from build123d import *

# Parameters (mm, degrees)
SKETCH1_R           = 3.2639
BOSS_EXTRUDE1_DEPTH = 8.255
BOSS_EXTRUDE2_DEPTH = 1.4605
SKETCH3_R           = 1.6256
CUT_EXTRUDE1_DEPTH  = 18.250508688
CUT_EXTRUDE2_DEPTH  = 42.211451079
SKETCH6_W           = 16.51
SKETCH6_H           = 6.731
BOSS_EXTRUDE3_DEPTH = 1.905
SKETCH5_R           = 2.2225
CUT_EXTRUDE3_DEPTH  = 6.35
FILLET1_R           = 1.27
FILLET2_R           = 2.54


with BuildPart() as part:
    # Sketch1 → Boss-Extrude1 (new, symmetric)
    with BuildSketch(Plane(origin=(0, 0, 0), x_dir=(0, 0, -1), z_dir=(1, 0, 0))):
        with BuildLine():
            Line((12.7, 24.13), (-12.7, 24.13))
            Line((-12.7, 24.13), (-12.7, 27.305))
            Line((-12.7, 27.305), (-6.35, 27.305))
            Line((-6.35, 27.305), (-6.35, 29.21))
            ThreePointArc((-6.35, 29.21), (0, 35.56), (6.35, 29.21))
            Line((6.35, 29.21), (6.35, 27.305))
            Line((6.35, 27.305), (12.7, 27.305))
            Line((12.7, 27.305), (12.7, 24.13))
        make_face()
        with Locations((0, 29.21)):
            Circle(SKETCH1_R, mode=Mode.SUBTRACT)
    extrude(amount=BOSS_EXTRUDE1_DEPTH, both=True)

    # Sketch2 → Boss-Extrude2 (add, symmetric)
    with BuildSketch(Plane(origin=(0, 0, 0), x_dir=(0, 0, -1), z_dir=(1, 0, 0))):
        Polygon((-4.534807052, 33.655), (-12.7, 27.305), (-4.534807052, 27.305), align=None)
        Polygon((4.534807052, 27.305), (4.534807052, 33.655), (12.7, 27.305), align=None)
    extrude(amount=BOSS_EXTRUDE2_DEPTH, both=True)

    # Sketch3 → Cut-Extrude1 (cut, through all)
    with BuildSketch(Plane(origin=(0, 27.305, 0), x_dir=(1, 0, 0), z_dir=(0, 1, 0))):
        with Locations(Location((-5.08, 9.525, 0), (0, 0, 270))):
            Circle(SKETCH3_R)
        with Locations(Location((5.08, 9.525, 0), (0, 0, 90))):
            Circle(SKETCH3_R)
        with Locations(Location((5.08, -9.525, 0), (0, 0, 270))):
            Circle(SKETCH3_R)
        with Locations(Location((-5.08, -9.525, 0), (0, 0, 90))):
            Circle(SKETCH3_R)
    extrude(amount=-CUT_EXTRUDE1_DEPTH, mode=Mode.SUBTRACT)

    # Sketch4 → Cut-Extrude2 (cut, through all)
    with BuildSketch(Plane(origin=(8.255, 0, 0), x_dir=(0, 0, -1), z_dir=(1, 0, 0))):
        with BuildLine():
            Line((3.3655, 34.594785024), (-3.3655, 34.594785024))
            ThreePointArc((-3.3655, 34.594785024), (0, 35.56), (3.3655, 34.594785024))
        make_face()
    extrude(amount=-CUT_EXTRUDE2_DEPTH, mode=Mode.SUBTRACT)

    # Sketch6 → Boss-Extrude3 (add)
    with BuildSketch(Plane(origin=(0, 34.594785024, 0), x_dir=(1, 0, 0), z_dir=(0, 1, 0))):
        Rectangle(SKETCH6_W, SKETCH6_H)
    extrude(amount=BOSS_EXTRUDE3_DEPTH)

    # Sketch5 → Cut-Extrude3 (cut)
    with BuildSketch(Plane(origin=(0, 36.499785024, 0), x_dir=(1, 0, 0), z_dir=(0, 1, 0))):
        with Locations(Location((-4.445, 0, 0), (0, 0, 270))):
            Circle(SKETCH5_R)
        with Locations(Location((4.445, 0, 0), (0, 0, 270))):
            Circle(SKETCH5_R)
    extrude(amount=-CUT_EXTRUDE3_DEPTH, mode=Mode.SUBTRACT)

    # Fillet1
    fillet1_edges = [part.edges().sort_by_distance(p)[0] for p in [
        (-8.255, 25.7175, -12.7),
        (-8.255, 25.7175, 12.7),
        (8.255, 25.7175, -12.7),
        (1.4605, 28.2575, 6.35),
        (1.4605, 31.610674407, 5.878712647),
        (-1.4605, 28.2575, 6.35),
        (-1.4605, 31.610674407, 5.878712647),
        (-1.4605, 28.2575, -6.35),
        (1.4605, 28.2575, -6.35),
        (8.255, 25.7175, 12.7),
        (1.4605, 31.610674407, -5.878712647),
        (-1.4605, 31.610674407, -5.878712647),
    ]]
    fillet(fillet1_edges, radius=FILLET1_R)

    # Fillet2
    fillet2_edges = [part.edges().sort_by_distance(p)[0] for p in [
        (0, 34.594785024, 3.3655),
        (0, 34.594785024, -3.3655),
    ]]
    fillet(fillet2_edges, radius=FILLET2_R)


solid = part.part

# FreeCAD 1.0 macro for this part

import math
import FreeCAD as App
import Part
import Sketcher
from FreeCAD import Vector
Q = App.Units.Quantity


def edges_at(feature, points):
    """Names of the edges that pass closest to the given points."""
    edges = feature.Shape.Edges
    near = lambda p: min(range(len(edges)), key=lambda i: edges[i].distToShape(Part.Vertex(*p))[0])
    return sorted({f"Edge{near(p) + 1}" for p in points})


def add_polygon(sketch, points):
    """Adds a closed chain of lines whose ends are joined by coincident constraints."""
    first, n = sketch.GeometryCount, len(points)
    for a, b in zip(points, points[1:] + points[:1]):
        sketch.addGeometry(Part.LineSegment(App.Vector(*a, 0), App.Vector(*b, 0)), False)
    for i in range(n):
        sketch.addConstraint(Sketcher.Constraint("Coincident", first + i, 2, first + (i + 1) % n, 1))

doc = App.newDocument("Part")
body = doc.addObject("PartDesign::Body", "Body")

sketch1 = body.newObject("Sketcher::SketchObject", "Sketch")
sketch1.AttachmentSupport = (doc.getObject("YZ_Plane"), [""])
sketch1.MapMode = "FlatFace"
sketch1.addGeometry([
    Part.LineSegment(Vector(24.1, 12.7, 0), Vector(24.1, -12.7, 0)),
    Part.LineSegment(Vector(24.1, -12.7, 0), Vector(27.3, -12.7, 0)),
    Part.LineSegment(Vector(27.3, -12.7, 0), Vector(27.3, -6.3, 0)),
    Part.LineSegment(Vector(27.3, -6.3, 0), Vector(29.2, -6.3, 0)),
    Part.ArcOfCircle(Part.Circle(Vector(29.2, 0, 0), Vector(0, 0, 1), 6.3), math.radians(-90), math.radians(90)),
    Part.LineSegment(Vector(29.2, 6.3, 0), Vector(27.3, 6.3, 0)),
    Part.LineSegment(Vector(27.3, 6.3, 0), Vector(27.3, 12.7, 0)),
    Part.LineSegment(Vector(27.3, 12.7, 0), Vector(24.1, 12.7, 0)),
    Part.Circle(Vector(29.2, 0, 0), Vector(0, 0, 1), 3.3),
], False)
sketch1.addConstraint([
    Sketcher.Constraint("Coincident", 0, 2, 1, 1),
    Sketcher.Constraint("Coincident", 1, 2, 2, 1),
    Sketcher.Constraint("Coincident", 2, 2, 3, 1),
    Sketcher.Constraint("Tangent", 3, 2, 4, 1),
    Sketcher.Constraint("Tangent", 4, 2, 5, 1),
    Sketcher.Constraint("Coincident", 5, 2, 6, 1),
    Sketcher.Constraint("Coincident", 6, 2, 7, 1),
    Sketcher.Constraint("Coincident", 7, 2, 0, 1),
    Sketcher.Constraint("Vertical", 0),
    Sketcher.Constraint("Horizontal", 1),
    Sketcher.Constraint("Vertical", 2),
    Sketcher.Constraint("Horizontal", 3),
    Sketcher.Constraint("Horizontal", 5),
    Sketcher.Constraint("Vertical", 6),
    Sketcher.Constraint("Horizontal", 7),
    Sketcher.Constraint("Coincident", 8, 3, 4, 3),
    Sketcher.Constraint("Symmetric", 2, 2, 5, 2, -1),
    Sketcher.Constraint("Equal", 2, 6),
    Sketcher.Constraint("DistanceY", 0, 2, 0, 1, Q("1 in")),
    Sketcher.Constraint("Radius", 4, Q("0.25 in")),
    Sketcher.Constraint("Diameter", 8, Q("0.257 in")),
    Sketcher.Constraint("DistanceX", 0, 2, 4, 3, Q("0.2 in")),
    Sketcher.Constraint("DistanceX", 1, 1, 1, 2, Q("0.125 in")),
    Sketcher.Constraint("DistanceX", -1, 1, 4, 3, Q("1.15 in")),
])
pad1 = body.newObject("PartDesign::Pad", "Pad")
pad1.Profile = sketch1
pad1.Length = Q("0.65 in")
pad1.Midplane = True

sketch2 = body.newObject("Sketcher::SketchObject", "Sketch001")
sketch2.AttachmentSupport = (doc.getObject("YZ_Plane"), [""])
sketch2.MapMode = "FlatFace"
add_polygon(sketch2, [(34, 5), (27, 13), (27, 5)])
add_polygon(sketch2, [(34, -5), (27, -5), (27, -13)])
sketch2.addConstraint([
    Sketcher.Constraint("Vertical", 1),
    Sketcher.Constraint("Horizontal", 2),
    Sketcher.Constraint("Horizontal", 3),
    Sketcher.Constraint("Vertical", 4),
    Sketcher.Constraint("Symmetric", 1, 2, 3, 2, -1),
    Sketcher.Constraint("Vertical", 2, 2, 5, 2),
    Sketcher.Constraint("Equal", 1, 4),
    Sketcher.Constraint("DistanceY", 4, 2, 0, 2, Q("1 in")),
    Sketcher.Constraint("DistanceX", 2, 1, 2, 2, Q("0.25 in")),
    Sketcher.Constraint("DistanceX", -1, 1, 0, 2, Q("1.075 in")),
    Sketcher.Constraint("DistanceY", 1, 2, 1, 1, Q("8.165193 mm")),
])
pad2 = body.newObject("PartDesign::Pad", "Pad001")
pad2.Profile = sketch2
pad2.Length = Q("0.115 in")
pad2.Midplane = True

sketch3 = body.newObject("Sketcher::SketchObject", "Sketch002")
sketch3.AttachmentSupport = (doc.getObject("XZ_Plane"), [""])
sketch3.MapMode = "FlatFace"
sketch3.AttachmentOffset = App.Placement(Vector(0, 0, -1.075 * 25.4), App.Rotation())
sketch3.addGeometry([
    Part.Circle(Vector(-5.1, -9.5, 0), Vector(0, 0, 1), 1.6),
    Part.Circle(Vector(5.1, -9.5, 0), Vector(0, 0, 1), 1.6),
    Part.Circle(Vector(5.1, 9.5, 0), Vector(0, 0, 1), 1.6),
    Part.Circle(Vector(-5.1, 9.5, 0), Vector(0, 0, 1), 1.6),
], False)
sketch3.addConstraint([
    Sketcher.Constraint("Equal", 0, 1),
    Sketcher.Constraint("Equal", 1, 2),
    Sketcher.Constraint("Equal", 2, 3),
    Sketcher.Constraint("Symmetric", 0, 3, 2, 3, -1, 1),
    Sketcher.Constraint("Symmetric", 1, 3, 3, 3, -1, 1),
    Sketcher.Constraint("Symmetric", 0, 3, 1, 3, -2),
    Sketcher.Constraint("Diameter", 0, Q("0.128 in")),
    Sketcher.Constraint("DistanceX", 0, 3, -1, 1, Q("0.2 in")),
    Sketcher.Constraint("DistanceY", 1, 3, 2, 3, Q("0.75 in")),
])
pocket1 = body.newObject("PartDesign::Pocket", "Pocket")
pocket1.Profile = sketch3
pocket1.Type = "ThroughAll"
pocket1.Reversed = True

sketch4 = body.newObject("Sketcher::SketchObject", "Sketch003")
sketch4.AttachmentSupport = (doc.getObject("YZ_Plane"), [""])
sketch4.MapMode = "FlatFace"
sketch4.AttachmentOffset = App.Placement(Vector(0, 0, 0.325 * 25.4), App.Rotation())
sketch4.addGeometry([
    Part.LineSegment(Vector(35, 3, 0), Vector(35, -3, 0)),
    Part.ArcOfCircle(Part.Circle(Vector(29, 0, 0), Vector(0, 0, 1), 6), math.radians(-32), math.radians(32)),
], False)
sketch4.addConstraint([
    Sketcher.Constraint("Coincident", 0, 1, 1, 2),
    Sketcher.Constraint("Coincident", 1, 1, 0, 2),
    Sketcher.Constraint("Vertical", 0),
    Sketcher.Constraint("PointOnObject", 1, 3, -1),
    Sketcher.Constraint("Radius", 1, Q("0.25 in")),
    Sketcher.Constraint("DistanceY", 0, 2, 0, 1, Q("0.265 in")),
    Sketcher.Constraint("DistanceX", -1, 1, 1, 3, Q("1.15 in")),
])
pocket2 = body.newObject("PartDesign::Pocket", "Pocket001")
pocket2.Profile = sketch4
pocket2.Type = "ThroughAll"

sketch5 = body.newObject("Sketcher::SketchObject", "Sketch004")
sketch5.AttachmentSupport = (doc.getObject("XZ_Plane"), [""])
sketch5.MapMode = "FlatFace"
sketch5.AttachmentOffset = App.Placement(Vector(0, 0, -34.594785), App.Rotation())
add_polygon(sketch5, [(-8, -3), (-8, 3), (8, 3), (8, -3)])
sketch5.addConstraint([
    Sketcher.Constraint("Vertical", 0),
    Sketcher.Constraint("Horizontal", 1),
    Sketcher.Constraint("Vertical", 2),
    Sketcher.Constraint("Horizontal", 3),
    Sketcher.Constraint("Symmetric", 0, 2, 2, 2, -1, 1),
    Sketcher.Constraint("DistanceX", 1, 1, 1, 2, Q("0.65 in")),
    Sketcher.Constraint("DistanceY", 0, 1, 0, 2, Q("0.265 in")),
])
pad3 = body.newObject("PartDesign::Pad", "Pad002")
pad3.Profile = sketch5
pad3.Length = Q("0.075 in")
pad3.Reversed = True

sketch6 = body.newObject("Sketcher::SketchObject", "Sketch005")
sketch6.AttachmentSupport = (doc.getObject("XZ_Plane"), [""])
sketch6.MapMode = "FlatFace"
sketch6.AttachmentOffset = App.Placement(Vector(0, 0, -36.499785), App.Rotation())
sketch6.addGeometry([
    Part.Circle(Vector(-4.4, 0, 0), Vector(0, 0, 1), 2.2),
    Part.Circle(Vector(4.4, 0, 0), Vector(0, 0, 1), 2.2),
], False)
sketch6.addConstraint([
    Sketcher.Constraint("Equal", 0, 1),
    Sketcher.Constraint("Symmetric", 0, 3, 1, 3, -1, 1),
    Sketcher.Constraint("PointOnObject", 0, 3, -1),
    Sketcher.Constraint("Diameter", 0, Q("0.175 in")),
    Sketcher.Constraint("DistanceX", 0, 3, 1, 3, Q("0.35 in")),
])
pocket3 = body.newObject("PartDesign::Pocket", "Pocket002")
pocket3.Profile = sketch6
pocket3.Length = Q("0.25 in")
pocket3.Reversed = True
doc.recompute()

fillet = body.newObject("PartDesign::Fillet", "Fillet")
fillet.Base = (pocket3, edges_at(pocket3, [
    (-8.255, 25.718, -12.7),
    (-8.255, 25.718, 12.7),
    (8.255, 25.718, -12.7),
    (1.46, 28.258, 6.35),
    (1.46, 31.611, 5.879),
    (-1.46, 28.258, 6.35),
    (-1.46, 31.611, 5.879),
    (-1.46, 28.258, -6.35),
    (1.46, 28.258, -6.35),
    (8.255, 25.718, 12.7),
    (1.46, 31.611, -5.879),
    (-1.46, 31.611, -5.879),
]))
fillet.Radius = Q("0.05 in")
doc.recompute()

fillet2 = body.newObject("PartDesign::Fillet", "Fillet001")
fillet2.Base = (fillet, edges_at(fillet, [(0, 34.595, 3.365), (0, 34.595, -3.365)]))
fillet2.Radius = Q("0.1 in")

doc.recompute()
